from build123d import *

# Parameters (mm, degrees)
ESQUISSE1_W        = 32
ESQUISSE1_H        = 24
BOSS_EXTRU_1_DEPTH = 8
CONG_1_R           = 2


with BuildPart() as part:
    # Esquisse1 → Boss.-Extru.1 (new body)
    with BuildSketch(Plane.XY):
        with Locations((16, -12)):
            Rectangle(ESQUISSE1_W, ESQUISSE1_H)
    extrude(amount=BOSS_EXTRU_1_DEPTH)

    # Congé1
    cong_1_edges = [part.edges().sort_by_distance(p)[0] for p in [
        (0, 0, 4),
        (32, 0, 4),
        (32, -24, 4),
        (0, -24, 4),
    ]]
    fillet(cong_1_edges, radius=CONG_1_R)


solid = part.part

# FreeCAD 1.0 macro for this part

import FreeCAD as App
import Part
import Sketcher


def edges_at(feature, points):
    """Names of the edges that pass closest to the given points."""
    edges = feature.Shape.Edges
    near = lambda p: min(range(len(edges)), key=lambda i: edges[i].distToShape(Part.Vertex(*p))[0])
    return sorted({f"Edge{near(p) + 1}" for p in points})


def add_polygon(sketch, points):
    """Adds a closed chain of lines whose ends are joined by coincident constraints."""
    first, n = sketch.GeometryCount, len(points)
    for a, b in zip(points, points[1:] + points[:1]):
        sketch.addGeometry(Part.LineSegment(App.Vector(*a, 0), App.Vector(*b, 0)), False)
    for i in range(n):
        sketch.addConstraint(Sketcher.Constraint("Coincident", first + i, 2, first + (i + 1) % n, 1))

doc = App.newDocument("Part")
body = doc.addObject("PartDesign::Body", "Body")

# Sketch on XY plane
sketch1 = body.newObject("Sketcher::SketchObject", "Sketch")
sketch1.AttachmentSupport = (doc.getObject("XY_Plane"), [""])
sketch1.MapMode = "FlatFace"
add_polygon(sketch1, [(0, 0), (0, -24), (32, -24), (32, 0)])  # lines 0-3
sketch1.addConstraint([
    Sketcher.Constraint("Vertical", 0),
    Sketcher.Constraint("Horizontal", 1),
    Sketcher.Constraint("Vertical", 2),
    Sketcher.Constraint("Horizontal", 3),
    Sketcher.Constraint("Coincident", 3, 2, -1, 1),
    Sketcher.Constraint("DistanceX", 1, 1, 1, 2, 32.0),
    Sketcher.Constraint("DistanceY", 0, 2, 0, 1, 24.0),
])
pad1 = body.newObject("PartDesign::Pad", "Pad")
pad1.Profile = sketch1
pad1.Length = 8
doc.recompute()

fillet = body.newObject("PartDesign::Fillet", "Fillet")
fillet.Base = (pad1, edges_at(pad1, [
    (0, 0, 4),
    (32, 0, 4),
    (32, -24, 4),
    (0, -24, 4),
]))
fillet.Radius = 2

doc.recompute()
